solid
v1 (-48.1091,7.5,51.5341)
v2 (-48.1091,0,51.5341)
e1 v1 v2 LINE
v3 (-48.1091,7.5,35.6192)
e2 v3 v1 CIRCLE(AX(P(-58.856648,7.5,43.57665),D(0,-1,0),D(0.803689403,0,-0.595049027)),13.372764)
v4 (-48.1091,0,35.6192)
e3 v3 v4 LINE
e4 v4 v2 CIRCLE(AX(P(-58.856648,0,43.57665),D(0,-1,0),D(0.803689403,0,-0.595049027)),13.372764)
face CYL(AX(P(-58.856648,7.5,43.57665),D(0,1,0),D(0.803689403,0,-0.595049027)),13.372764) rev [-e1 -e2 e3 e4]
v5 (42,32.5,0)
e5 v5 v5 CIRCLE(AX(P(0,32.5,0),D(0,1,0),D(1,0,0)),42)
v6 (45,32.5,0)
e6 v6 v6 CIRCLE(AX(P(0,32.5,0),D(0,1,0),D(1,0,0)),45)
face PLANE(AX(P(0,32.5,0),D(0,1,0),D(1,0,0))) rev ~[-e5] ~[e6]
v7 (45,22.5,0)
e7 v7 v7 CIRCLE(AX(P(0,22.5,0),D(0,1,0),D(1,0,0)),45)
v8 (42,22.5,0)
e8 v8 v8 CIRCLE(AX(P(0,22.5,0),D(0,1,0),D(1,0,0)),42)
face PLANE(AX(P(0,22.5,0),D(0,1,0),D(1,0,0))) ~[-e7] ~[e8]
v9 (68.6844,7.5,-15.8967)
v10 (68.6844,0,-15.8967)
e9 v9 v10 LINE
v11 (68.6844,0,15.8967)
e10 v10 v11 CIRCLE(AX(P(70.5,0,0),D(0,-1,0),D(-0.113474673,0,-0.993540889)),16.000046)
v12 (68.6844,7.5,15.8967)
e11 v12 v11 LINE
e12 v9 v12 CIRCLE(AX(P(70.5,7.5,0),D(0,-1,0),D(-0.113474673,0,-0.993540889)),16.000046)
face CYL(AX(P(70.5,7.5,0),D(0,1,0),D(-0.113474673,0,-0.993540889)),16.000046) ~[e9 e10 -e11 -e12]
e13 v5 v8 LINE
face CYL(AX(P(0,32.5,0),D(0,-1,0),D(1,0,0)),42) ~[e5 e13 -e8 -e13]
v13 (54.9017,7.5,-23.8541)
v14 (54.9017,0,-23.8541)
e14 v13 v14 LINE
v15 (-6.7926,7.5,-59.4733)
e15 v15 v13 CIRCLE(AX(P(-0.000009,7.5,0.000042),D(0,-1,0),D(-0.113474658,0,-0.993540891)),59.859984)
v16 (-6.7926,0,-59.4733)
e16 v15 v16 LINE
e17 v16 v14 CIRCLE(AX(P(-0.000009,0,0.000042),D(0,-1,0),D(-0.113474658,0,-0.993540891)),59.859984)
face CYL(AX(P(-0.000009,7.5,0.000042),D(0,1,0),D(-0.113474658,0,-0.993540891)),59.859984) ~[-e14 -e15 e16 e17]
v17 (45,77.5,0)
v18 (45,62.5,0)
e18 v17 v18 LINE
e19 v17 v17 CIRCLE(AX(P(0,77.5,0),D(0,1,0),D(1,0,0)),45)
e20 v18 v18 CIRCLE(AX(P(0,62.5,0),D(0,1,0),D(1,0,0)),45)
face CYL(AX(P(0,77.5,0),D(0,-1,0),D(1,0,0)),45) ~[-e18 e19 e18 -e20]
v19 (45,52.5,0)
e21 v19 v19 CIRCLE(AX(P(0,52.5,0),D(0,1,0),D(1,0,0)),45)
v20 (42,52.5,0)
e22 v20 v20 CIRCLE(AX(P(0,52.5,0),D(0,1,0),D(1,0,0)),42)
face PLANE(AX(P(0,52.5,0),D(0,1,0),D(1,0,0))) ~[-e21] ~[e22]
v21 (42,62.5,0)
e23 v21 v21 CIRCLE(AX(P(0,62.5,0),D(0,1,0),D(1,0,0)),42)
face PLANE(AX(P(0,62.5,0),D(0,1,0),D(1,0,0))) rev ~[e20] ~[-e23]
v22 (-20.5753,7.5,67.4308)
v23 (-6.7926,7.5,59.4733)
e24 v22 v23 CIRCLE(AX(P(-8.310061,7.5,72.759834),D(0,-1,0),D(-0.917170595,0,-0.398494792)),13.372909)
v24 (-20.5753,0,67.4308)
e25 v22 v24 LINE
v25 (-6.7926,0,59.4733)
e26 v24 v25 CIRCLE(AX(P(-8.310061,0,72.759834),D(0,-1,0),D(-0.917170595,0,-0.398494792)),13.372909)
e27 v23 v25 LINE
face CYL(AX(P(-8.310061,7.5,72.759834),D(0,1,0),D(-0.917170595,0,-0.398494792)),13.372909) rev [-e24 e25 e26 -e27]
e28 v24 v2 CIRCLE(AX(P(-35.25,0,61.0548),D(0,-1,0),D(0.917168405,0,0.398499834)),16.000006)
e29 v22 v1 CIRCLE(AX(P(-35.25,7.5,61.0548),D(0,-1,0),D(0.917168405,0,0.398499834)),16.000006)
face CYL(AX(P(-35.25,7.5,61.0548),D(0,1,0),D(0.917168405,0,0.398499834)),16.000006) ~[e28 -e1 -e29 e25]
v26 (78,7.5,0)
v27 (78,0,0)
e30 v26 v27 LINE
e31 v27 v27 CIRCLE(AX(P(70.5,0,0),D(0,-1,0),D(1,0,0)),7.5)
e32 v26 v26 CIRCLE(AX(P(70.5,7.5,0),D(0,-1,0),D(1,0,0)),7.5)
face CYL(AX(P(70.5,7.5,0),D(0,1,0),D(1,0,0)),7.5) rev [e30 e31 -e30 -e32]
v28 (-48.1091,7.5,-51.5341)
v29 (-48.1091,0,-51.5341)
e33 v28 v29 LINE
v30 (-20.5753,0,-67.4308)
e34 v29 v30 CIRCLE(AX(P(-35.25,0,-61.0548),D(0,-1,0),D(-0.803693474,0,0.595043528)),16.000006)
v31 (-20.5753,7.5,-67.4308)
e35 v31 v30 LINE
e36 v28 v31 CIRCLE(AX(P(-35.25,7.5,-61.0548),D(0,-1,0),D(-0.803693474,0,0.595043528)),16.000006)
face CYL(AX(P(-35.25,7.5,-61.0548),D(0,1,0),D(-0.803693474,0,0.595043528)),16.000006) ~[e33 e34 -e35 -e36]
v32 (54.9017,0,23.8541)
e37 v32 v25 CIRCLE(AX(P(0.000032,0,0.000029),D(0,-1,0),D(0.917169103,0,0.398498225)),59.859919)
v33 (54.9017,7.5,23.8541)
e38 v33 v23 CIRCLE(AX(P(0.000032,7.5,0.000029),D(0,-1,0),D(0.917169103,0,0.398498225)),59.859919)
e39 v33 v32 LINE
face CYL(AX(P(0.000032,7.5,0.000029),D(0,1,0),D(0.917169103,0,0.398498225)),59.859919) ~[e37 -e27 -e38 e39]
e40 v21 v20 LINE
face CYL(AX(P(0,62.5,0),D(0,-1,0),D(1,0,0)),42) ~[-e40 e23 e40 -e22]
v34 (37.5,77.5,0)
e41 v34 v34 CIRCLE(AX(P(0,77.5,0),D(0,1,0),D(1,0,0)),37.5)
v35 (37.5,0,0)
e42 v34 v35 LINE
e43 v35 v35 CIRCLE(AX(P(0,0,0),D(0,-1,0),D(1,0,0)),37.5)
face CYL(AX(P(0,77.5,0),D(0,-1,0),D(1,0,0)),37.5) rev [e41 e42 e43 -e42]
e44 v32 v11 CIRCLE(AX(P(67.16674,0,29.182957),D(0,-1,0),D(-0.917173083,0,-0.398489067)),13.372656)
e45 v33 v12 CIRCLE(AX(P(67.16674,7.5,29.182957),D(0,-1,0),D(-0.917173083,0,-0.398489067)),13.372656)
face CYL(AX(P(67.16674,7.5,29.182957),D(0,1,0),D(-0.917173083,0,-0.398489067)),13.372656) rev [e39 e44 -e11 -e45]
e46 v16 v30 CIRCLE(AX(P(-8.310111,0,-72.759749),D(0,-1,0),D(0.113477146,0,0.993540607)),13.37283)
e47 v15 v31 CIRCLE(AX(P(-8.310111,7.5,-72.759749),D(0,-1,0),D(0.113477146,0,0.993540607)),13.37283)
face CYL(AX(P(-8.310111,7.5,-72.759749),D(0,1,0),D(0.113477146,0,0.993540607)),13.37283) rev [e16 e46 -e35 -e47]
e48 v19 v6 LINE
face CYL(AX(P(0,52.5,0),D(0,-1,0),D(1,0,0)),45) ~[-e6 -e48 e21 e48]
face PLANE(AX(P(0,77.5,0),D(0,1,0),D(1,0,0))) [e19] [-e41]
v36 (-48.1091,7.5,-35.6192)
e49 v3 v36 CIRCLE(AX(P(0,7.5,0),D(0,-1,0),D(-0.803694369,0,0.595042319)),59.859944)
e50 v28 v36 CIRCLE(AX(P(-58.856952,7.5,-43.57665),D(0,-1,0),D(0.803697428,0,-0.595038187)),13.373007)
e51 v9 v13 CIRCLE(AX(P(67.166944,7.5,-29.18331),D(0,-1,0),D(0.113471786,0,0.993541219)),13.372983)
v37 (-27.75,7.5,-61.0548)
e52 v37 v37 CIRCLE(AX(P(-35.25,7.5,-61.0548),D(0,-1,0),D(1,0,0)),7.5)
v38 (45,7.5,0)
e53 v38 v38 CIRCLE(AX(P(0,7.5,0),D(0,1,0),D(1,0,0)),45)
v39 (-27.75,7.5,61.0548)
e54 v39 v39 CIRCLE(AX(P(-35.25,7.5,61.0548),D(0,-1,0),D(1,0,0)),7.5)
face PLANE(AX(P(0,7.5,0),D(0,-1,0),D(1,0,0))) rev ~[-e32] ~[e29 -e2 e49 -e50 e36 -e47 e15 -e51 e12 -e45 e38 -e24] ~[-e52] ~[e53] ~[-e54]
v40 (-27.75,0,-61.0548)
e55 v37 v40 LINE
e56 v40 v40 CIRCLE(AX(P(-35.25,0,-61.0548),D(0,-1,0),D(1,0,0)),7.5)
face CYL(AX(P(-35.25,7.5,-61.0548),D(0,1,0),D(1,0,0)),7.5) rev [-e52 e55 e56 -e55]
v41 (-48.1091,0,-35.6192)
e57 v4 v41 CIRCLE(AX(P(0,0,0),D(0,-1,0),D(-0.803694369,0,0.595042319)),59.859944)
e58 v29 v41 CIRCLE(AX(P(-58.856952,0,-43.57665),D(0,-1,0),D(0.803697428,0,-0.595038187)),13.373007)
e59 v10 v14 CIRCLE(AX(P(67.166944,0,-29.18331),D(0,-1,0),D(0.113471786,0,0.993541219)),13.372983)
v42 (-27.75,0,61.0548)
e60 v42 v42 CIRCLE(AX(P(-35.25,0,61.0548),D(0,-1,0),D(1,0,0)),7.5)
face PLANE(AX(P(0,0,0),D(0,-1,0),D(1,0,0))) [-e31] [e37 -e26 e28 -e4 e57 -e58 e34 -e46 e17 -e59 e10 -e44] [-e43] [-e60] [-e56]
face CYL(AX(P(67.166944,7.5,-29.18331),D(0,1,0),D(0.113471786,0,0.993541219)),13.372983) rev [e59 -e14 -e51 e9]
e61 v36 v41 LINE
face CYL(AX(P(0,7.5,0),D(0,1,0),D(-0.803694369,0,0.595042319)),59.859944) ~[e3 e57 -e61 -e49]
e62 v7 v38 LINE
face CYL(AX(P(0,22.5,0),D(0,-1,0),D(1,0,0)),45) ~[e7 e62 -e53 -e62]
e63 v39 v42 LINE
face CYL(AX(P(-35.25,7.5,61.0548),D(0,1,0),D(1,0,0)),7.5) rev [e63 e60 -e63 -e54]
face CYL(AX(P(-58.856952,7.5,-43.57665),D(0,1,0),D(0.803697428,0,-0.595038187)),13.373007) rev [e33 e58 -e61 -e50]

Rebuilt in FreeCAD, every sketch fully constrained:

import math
import FreeCAD as App
import Part
import Sketcher


def add_polygon(sketch, points):
    """Adds a closed chain of lines whose ends are joined by coincident constraints."""
    first, n = sketch.GeometryCount, len(points)
    for a, b in zip(points, points[1:] + points[:1]):
        sketch.addGeometry(Part.LineSegment(App.Vector(*a, 0), App.Vector(*b, 0)), False)
    for i in range(n):
        sketch.addConstraint(Sketcher.Constraint("Coincident", first + i, 2, first + (i + 1) % n, 1))

doc = App.newDocument("Part")
body = doc.addObject("PartDesign::Body", "Body")

sketch1 = doc.addObject("Sketcher::SketchObject", "Sketch")
body.addObject(sketch1)
sketch1.AttachmentSupport = (doc.XY_Plane, [""])
sketch1.MapMode = "FlatFace"
add_polygon(sketch1, [(45, 62.5), (45, 77.5), (37.5, 77.5), (37.5, 7.5), (45, 7.5), (45, 22.5), (42, 22.5), (42, 32.5), (45, 32.5), (45, 52.5), (42, 52.5), (42, 62.5)])
sketch1.addConstraint(Sketcher.Constraint("Vertical", 0))
sketch1.addConstraint(Sketcher.Constraint("Horizontal", 1))
sketch1.addConstraint(Sketcher.Constraint("Vertical", 2))
sketch1.addConstraint(Sketcher.Constraint("Horizontal", 3))
sketch1.addConstraint(Sketcher.Constraint("Vertical", 4))
sketch1.addConstraint(Sketcher.Constraint("Horizontal", 5))
sketch1.addConstraint(Sketcher.Constraint("Vertical", 6))
sketch1.addConstraint(Sketcher.Constraint("Horizontal", 7))
sketch1.addConstraint(Sketcher.Constraint("Vertical", 8))
sketch1.addConstraint(Sketcher.Constraint("Horizontal", 9))
sketch1.addConstraint(Sketcher.Constraint("Vertical", 10))
sketch1.addConstraint(Sketcher.Constraint("Horizontal", 11))
sketch1.addConstraint(Sketcher.Constraint("Vertical", 0, 2, 3, 2))
sketch1.addConstraint(Sketcher.Constraint("Vertical", 4, 2, 7, 2))
sketch1.addConstraint(Sketcher.Constraint("Vertical", 6, 2, 9, 2))
sketch1.addConstraint(Sketcher.Constraint("Equal", 0, 4))
sketch1.addConstraint(Sketcher.Constraint("Equal", 6, 10))
sketch1.addConstraint(Sketcher.Constraint("DistanceX", 5, 2, 5, 1, 3.0))
sketch1.addConstraint(Sketcher.Constraint("DistanceY", 0, 1, 0, 2, 15.0))
sketch1.addConstraint(Sketcher.Constraint("DistanceY", 6, 1, 6, 2, 10.0))
sketch1.addConstraint(Sketcher.Constraint("DistanceY", 8, 1, 8, 2, 20.0))
sketch1.addConstraint(Sketcher.Constraint("DistanceX", 1, 2, 1, 1, 7.5))
sketch1.addConstraint(Sketcher.Constraint("DistanceY", -1, 1, 0, 2, 77.5))
sketch1.addConstraint(Sketcher.Constraint("DistanceX", -1, 1, 0, 2, 45.0))
revolution = doc.addObject("PartDesign::Revolution", "Revolution")
body.addObject(revolution)
revolution.Profile = sketch1
revolution.ReferenceAxis = (sketch1, ["V_Axis"])
revolution.Angle = 360

sketch2 = doc.addObject("Sketcher::SketchObject", "Sketch001")
body.addObject(sketch2)
sketch2.AttachmentSupport = (doc.XZ_Plane, [""])
sketch2.MapMode = "FlatFace"
sketch2.AttachmentOffset = App.Placement(App.Vector(0, 0, -7.5), App.Rotation())
sketch2.addGeometry(Part.ArcOfCircle(Part.Circle(App.Vector(-8, 73, 0), App.Vector(0, 0, 1), 13), math.radians(-157), math.radians(-83)), False)
sketch2.addGeometry(Part.ArcOfCircle(Part.Circle(App.Vector(-35, 61, 0), App.Vector(0, 0, 1), 16), math.radians(23), math.radians(217)), False)
sketch2.addGeometry(Part.ArcOfCircle(Part.Circle(App.Vector(-59, 44, 0), App.Vector(0, 0, 1), 13), math.radians(-37), math.radians(37)), False)
sketch2.addGeometry(Part.ArcOfCircle(Part.Circle(App.Vector(0, 0, 0), App.Vector(0, 0, 1), 60), math.radians(143), math.radians(217)), False)
sketch2.addGeometry(Part.ArcOfCircle(Part.Circle(App.Vector(-59, -44, 0), App.Vector(0, 0, 1), 13), math.radians(-37), math.radians(37)), False)
sketch2.addGeometry(Part.ArcOfCircle(Part.Circle(App.Vector(-35, -61, 0), App.Vector(0, 0, 1), 16), math.radians(143), math.radians(337)), False)
sketch2.addGeometry(Part.ArcOfCircle(Part.Circle(App.Vector(-8, -73, 0), App.Vector(0, 0, 1), 13), math.radians(83), math.radians(157)), False)
sketch2.addGeometry(Part.ArcOfCircle(Part.Circle(App.Vector(0, 0, 0), App.Vector(0, 0, 1), 60), math.radians(-97), math.radians(-23)), False)
sketch2.addGeometry(Part.ArcOfCircle(Part.Circle(App.Vector(67, -29, 0), App.Vector(0, 0, 1), 13), math.radians(83), math.radians(157)), False)
sketch2.addGeometry(Part.ArcOfCircle(Part.Circle(App.Vector(70, 0, 0), App.Vector(0, 0, 1), 16), math.radians(-97), math.radians(97)), False)
sketch2.addGeometry(Part.ArcOfCircle(Part.Circle(App.Vector(67, 29, 0), App.Vector(0, 0, 1), 13), math.radians(-157), math.radians(-83)), False)
sketch2.addGeometry(Part.ArcOfCircle(Part.Circle(App.Vector(0, 0, 0), App.Vector(0, 0, 1), 60), math.radians(23), math.radians(97)), False)
sketch2.addGeometry(Part.Circle(App.Vector(0, 0, 0), App.Vector(0, 0, 1), 38), False)
sketch2.addGeometry(Part.Circle(App.Vector(-35, -61, 0), App.Vector(0, 0, 1), 8), False)
sketch2.addGeometry(Part.Circle(App.Vector(-35, 61, 0), App.Vector(0, 0, 1), 8), False)
sketch2.addGeometry(Part.Circle(App.Vector(70, 0, 0), App.Vector(0, 0, 1), 8), False)
sketch2.addConstraint(Sketcher.Constraint("Tangent", 0, 1, 1, 1))
sketch2.addConstraint(Sketcher.Constraint("Tangent", 1, 2, 2, 2))
sketch2.addConstraint(Sketcher.Constraint("Tangent", 2, 1, 3, 1))
sketch2.addConstraint(Sketcher.Constraint("Tangent", 3, 2, 4, 2))
sketch2.addConstraint(Sketcher.Constraint("Tangent", 4, 1, 5, 1))
sketch2.addConstraint(Sketcher.Constraint("Tangent", 5, 2, 6, 2))
sketch2.addConstraint(Sketcher.Constraint("Tangent", 6, 1, 7, 1))
sketch2.addConstraint(Sketcher.Constraint("Tangent", 7, 2, 8, 2))
sketch2.addConstraint(Sketcher.Constraint("Tangent", 8, 1, 9, 1))
sketch2.addConstraint(Sketcher.Constraint("Tangent", 9, 2, 10, 2))
sketch2.addConstraint(Sketcher.Constraint("Tangent", 10, 1, 11, 1))
sketch2.addConstraint(Sketcher.Constraint("Tangent", 11, 2, 0, 2))
sketch2.addConstraint(Sketcher.Constraint("Coincident", 3, 3, -1, 1))
sketch2.addConstraint(Sketcher.Constraint("Coincident", 7, 3, -1, 1))
sketch2.addConstraint(Sketcher.Constraint("Coincident", 11, 3, -1, 1))
sketch2.addConstraint(Sketcher.Constraint("Coincident", 12, 3, -1, 1))
sketch2.addConstraint(Sketcher.Constraint("Coincident", 13, 3, 5, 3))
sketch2.addConstraint(Sketcher.Constraint("Coincident", 14, 3, 1, 3))
sketch2.addConstraint(Sketcher.Constraint("Coincident", 15, 3, 9, 3))
sketch2.addConstraint(Sketcher.Constraint("Equal", 0, 2))
sketch2.addConstraint(Sketcher.Constraint("Equal", 2, 4))
sketch2.addConstraint(Sketcher.Constraint("Equal", 1, 5))
sketch2.addConstraint(Sketcher.Constraint("Equal", 4, 6))
sketch2.addConstraint(Sketcher.Constraint("Equal", 3, 7))
sketch2.addConstraint(Sketcher.Constraint("Equal", 6, 8))
sketch2.addConstraint(Sketcher.Constraint("Equal", 5, 9))
sketch2.addConstraint(Sketcher.Constraint("Equal", 8, 10))
sketch2.addConstraint(Sketcher.Constraint("Equal", 7, 11))
sketch2.addConstraint(Sketcher.Constraint("Equal", 13, 14))
sketch2.addConstraint(Sketcher.Constraint("Equal", 14, 15))
sketch2.addConstraint(Sketcher.Constraint("Symmetric", 1, 3, 5, 3, -1))
sketch2.addConstraint(Sketcher.Constraint("PointOnObject", 9, 3, -1))
sketch2.addConstraint(Sketcher.Constraint("Vertical", 1, 2, 2, 1))
sketch2.addConstraint(Sketcher.Constraint("Diameter", 13, 15.0))
sketch2.addConstraint(Sketcher.Constraint("Radius", 1, 16.0))
sketch2.addConstraint(Sketcher.Constraint("Diameter", 12, 75.0))
sketch2.addConstraint(Sketcher.Constraint("Radius", 3, 59.86))
sketch2.addConstraint(Sketcher.Constraint("Radius", 2, 13.373))
sketch2.addConstraint(Sketcher.Constraint("DistanceX", -1, 1, 9, 3, 70.5))
sketch2.addConstraint(Sketcher.Constraint("DistanceX", 0, 3, -1, 1, 8.31))
pad1 = doc.addObject("PartDesign::Pad", "Pad")
body.addObject(pad1)
pad1.Profile = sketch2
pad1.Length = 7.5

doc.recompute()
